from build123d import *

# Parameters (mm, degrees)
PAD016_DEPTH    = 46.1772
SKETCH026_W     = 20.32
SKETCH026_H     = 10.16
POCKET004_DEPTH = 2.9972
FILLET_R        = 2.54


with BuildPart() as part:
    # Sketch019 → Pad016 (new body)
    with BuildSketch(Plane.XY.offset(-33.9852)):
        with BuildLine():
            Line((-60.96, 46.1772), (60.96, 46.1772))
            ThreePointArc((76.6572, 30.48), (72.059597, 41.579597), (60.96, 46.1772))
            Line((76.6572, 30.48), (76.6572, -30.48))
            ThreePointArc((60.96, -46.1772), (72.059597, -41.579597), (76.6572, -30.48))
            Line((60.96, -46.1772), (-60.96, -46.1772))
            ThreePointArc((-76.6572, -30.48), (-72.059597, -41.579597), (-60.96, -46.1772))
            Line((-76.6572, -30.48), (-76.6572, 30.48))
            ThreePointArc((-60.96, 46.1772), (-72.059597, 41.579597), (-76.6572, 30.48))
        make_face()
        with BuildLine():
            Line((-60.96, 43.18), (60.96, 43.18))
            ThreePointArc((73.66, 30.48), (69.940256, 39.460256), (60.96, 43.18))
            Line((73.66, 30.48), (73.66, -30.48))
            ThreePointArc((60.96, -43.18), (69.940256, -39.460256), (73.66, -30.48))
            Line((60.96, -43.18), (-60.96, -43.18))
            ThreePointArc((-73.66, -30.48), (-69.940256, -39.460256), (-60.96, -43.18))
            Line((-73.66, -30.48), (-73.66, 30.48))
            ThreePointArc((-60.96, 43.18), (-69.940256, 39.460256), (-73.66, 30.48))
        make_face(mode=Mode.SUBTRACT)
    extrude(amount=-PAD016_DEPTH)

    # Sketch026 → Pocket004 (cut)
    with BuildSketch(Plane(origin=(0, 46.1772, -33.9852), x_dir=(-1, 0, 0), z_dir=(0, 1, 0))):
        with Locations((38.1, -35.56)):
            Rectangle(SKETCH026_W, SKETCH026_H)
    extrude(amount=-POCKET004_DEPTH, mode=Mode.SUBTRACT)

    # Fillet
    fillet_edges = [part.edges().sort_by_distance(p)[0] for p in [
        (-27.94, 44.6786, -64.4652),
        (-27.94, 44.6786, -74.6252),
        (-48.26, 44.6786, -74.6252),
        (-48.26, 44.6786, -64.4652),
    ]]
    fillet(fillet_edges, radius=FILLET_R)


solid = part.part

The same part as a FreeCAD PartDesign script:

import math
import FreeCAD as App
import Part
import Sketcher
Q = App.Units.Quantity


def edges_at(feature, points):
    """Names of the edges that pass closest to the given points."""
    edges = feature.Shape.Edges
    near = lambda p: min(range(len(edges)), key=lambda i: edges[i].distToShape(Part.Vertex(*p))[0])
    return sorted({f"Edge{near(p) + 1}" for p in points})

doc = App.newDocument("Part")
body = doc.addObject("PartDesign::Body", "Body")

# Sketch on XY plane
sketch1 = body.newObject("Sketcher::SketchObject", "Sketch")
sketch1.AttachmentSupport = (doc.getObject("XY_Plane"), [""])
sketch1.MapMode = "FlatFace"
sketch1.AttachmentOffset = App.Placement(App.Vector(0, 0, -1.338 * 25.4), App.Rotation())
sketch1.addGeometry([
    Part.LineSegment(App.Vector(61, 46, 0), App.Vector(-61, 46, 0)),  # 0
    Part.ArcOfCircle(Part.Circle(App.Vector(-61, 30, 0), App.Vector(0, 0, 1), 16), math.radians(90), math.radians(180)),  # 1
    Part.LineSegment(App.Vector(-77, 30, 0), App.Vector(-77, -30, 0)),  # 2
    Part.ArcOfCircle(Part.Circle(App.Vector(-61, -30, 0), App.Vector(0, 0, 1), 16), math.radians(180), math.radians(270)),  # 3
    Part.LineSegment(App.Vector(-61, -46, 0), App.Vector(61, -46, 0)),  # 4
    Part.ArcOfCircle(Part.Circle(App.Vector(61, -30, 0), App.Vector(0, 0, 1), 16), math.radians(-90), math.radians(0)),  # 5
    Part.LineSegment(App.Vector(77, -30, 0), App.Vector(77, 30, 0)),  # 6
    Part.ArcOfCircle(Part.Circle(App.Vector(61, 30, 0), App.Vector(0, 0, 1), 16), math.radians(0), math.radians(90)),  # 7
    Part.LineSegment(App.Vector(-61, 43, 0), App.Vector(61, 43, 0)),  # 8
    Part.ArcOfCircle(Part.Circle(App.Vector(61, 30, 0), App.Vector(0, 0, 1), 13), math.radians(0), math.radians(90)),  # 9
    Part.LineSegment(App.Vector(74, 30, 0), App.Vector(74, -30, 0)),  # 10
    Part.ArcOfCircle(Part.Circle(App.Vector(61, -30, 0), App.Vector(0, 0, 1), 13), math.radians(-90), math.radians(0)),  # 11
    Part.LineSegment(App.Vector(61, -43, 0), App.Vector(-61, -43, 0)),  # 12
    Part.ArcOfCircle(Part.Circle(App.Vector(-61, -30, 0), App.Vector(0, 0, 1), 13), math.radians(-180), math.radians(-90)),  # 13
    Part.LineSegment(App.Vector(-74, -30, 0), App.Vector(-74, 30, 0)),  # 14
    Part.ArcOfCircle(Part.Circle(App.Vector(-61, 30, 0), App.Vector(0, 0, 1), 13), math.radians(90), math.radians(180)),  # 15
], False)
sketch1.addConstraint([
    Sketcher.Constraint("Tangent", 0, 2, 1, 1),
    Sketcher.Constraint("Tangent", 1, 2, 2, 1),
    Sketcher.Constraint("Tangent", 2, 2, 3, 1),
    Sketcher.Constraint("Tangent", 3, 2, 4, 1),
    Sketcher.Constraint("Tangent", 4, 2, 5, 1),
    Sketcher.Constraint("Tangent", 5, 2, 6, 1),
    Sketcher.Constraint("Tangent", 6, 2, 7, 1),
    Sketcher.Constraint("Tangent", 7, 2, 0, 1),
    Sketcher.Constraint("Tangent", 8, 2, 9, 2),
    Sketcher.Constraint("Tangent", 9, 1, 10, 1),
    Sketcher.Constraint("Tangent", 10, 2, 11, 2),
    Sketcher.Constraint("Tangent", 11, 1, 12, 1),
    Sketcher.Constraint("Tangent", 12, 2, 13, 2),
    Sketcher.Constraint("Tangent", 13, 1, 14, 1),
    Sketcher.Constraint("Tangent", 14, 2, 15, 2),
    Sketcher.Constraint("Tangent", 15, 1, 8, 1),
    Sketcher.Constraint("Horizontal", 0),
    Sketcher.Constraint("Vertical", 2),
    Sketcher.Constraint("Horizontal", 4),
    Sketcher.Constraint("Vertical", 6),
    Sketcher.Constraint("Horizontal", 8),
    Sketcher.Constraint("Vertical", 10),
    Sketcher.Constraint("Horizontal", 12),
    Sketcher.Constraint("Vertical", 14),
    Sketcher.Constraint("Coincident", 9, 3, 7, 3),
    Sketcher.Constraint("Coincident", 11, 3, 5, 3),
    Sketcher.Constraint("Coincident", 13, 3, 3, 3),
    Sketcher.Constraint("Equal", 1, 3),
    Sketcher.Constraint("Equal", 3, 5),
    Sketcher.Constraint("Equal", 5, 7),
    Sketcher.Constraint("Equal", 13, 15),
    Sketcher.Constraint("Symmetric", 1, 3, 5, 3, -1, 1),
    Sketcher.Constraint("Radius", 9, Q("0.5 in")),
    Sketcher.Constraint("DistanceX", 0, 2, 0, 1, Q("4.8 in")),
    Sketcher.Constraint("DistanceY", 2, 2, 2, 1, Q("2.4 in")),
    Sketcher.Constraint("Radius", 1, Q("0.6179999 in")),
])
pad1 = body.newObject("PartDesign::Pad", "Pad")
pad1.Profile = sketch1
pad1.Length = Q("1.818 in")
pad1.Reversed = True

# Sketch on XZ plane
sketch2 = body.newObject("Sketcher::SketchObject", "Sketch001")
sketch2.AttachmentSupport = (doc.getObject("XZ_Plane"), [""])
sketch2.MapMode = "FlatFace"
sketch2.AttachmentOffset = App.Placement(App.Vector(0, 0, -1.818 * 25.4), App.Rotation())
sketch2.addGeometry([
    Part.LineSegment(App.Vector(-28, -64, 0), App.Vector(-28, -75, 0)),
    Part.LineSegment(App.Vector(-28, -75, 0), App.Vector(-48, -75, 0)),
    Part.LineSegment(App.Vector(-48, -75, 0), App.Vector(-48, -64, 0)),
    Part.LineSegment(App.Vector(-48, -64, 0), App.Vector(-28, -64, 0)),
], False)
sketch2.addConstraint([
    Sketcher.Constraint("Coincident", 0, 2, 1, 1),
    Sketcher.Constraint("Coincident", 1, 2, 2, 1),
    Sketcher.Constraint("Coincident", 2, 2, 3, 1),
    Sketcher.Constraint("Coincident", 3, 2, 0, 1),
    Sketcher.Constraint("Vertical", 0),
    Sketcher.Constraint("Horizontal", 1),
    Sketcher.Constraint("Vertical", 2),
    Sketcher.Constraint("Horizontal", 3),
    Sketcher.Constraint("DistanceX", 1, 2, 1, 1, Q("0.8 in")),
    Sketcher.Constraint("DistanceY", 0, 2, 0, 1, Q("0.4 in")),
    Sketcher.Constraint("DistanceX", 0, 2, -1, 1, Q("1.1 in")),
    Sketcher.Constraint("DistanceY", 0, 2, -1, 1, Q("2.938 in")),
])
pocket1 = body.newObject("PartDesign::Pocket", "Pocket")
pocket1.Profile = sketch2
pocket1.Length = Q("0.118 in")
pocket1.Reversed = True
doc.recompute()

fillet = body.newObject("PartDesign::Fillet", "Fillet")
fillet.Base = (pocket1, edges_at(pocket1, [
    (-27.94, 44.679, -64.465),
    (-27.94, 44.679, -74.625),
    (-48.26, 44.679, -74.625),
    (-48.26, 44.679, -64.465),
]))
fillet.Radius = Q("0.1 in")

doc.recompute()
